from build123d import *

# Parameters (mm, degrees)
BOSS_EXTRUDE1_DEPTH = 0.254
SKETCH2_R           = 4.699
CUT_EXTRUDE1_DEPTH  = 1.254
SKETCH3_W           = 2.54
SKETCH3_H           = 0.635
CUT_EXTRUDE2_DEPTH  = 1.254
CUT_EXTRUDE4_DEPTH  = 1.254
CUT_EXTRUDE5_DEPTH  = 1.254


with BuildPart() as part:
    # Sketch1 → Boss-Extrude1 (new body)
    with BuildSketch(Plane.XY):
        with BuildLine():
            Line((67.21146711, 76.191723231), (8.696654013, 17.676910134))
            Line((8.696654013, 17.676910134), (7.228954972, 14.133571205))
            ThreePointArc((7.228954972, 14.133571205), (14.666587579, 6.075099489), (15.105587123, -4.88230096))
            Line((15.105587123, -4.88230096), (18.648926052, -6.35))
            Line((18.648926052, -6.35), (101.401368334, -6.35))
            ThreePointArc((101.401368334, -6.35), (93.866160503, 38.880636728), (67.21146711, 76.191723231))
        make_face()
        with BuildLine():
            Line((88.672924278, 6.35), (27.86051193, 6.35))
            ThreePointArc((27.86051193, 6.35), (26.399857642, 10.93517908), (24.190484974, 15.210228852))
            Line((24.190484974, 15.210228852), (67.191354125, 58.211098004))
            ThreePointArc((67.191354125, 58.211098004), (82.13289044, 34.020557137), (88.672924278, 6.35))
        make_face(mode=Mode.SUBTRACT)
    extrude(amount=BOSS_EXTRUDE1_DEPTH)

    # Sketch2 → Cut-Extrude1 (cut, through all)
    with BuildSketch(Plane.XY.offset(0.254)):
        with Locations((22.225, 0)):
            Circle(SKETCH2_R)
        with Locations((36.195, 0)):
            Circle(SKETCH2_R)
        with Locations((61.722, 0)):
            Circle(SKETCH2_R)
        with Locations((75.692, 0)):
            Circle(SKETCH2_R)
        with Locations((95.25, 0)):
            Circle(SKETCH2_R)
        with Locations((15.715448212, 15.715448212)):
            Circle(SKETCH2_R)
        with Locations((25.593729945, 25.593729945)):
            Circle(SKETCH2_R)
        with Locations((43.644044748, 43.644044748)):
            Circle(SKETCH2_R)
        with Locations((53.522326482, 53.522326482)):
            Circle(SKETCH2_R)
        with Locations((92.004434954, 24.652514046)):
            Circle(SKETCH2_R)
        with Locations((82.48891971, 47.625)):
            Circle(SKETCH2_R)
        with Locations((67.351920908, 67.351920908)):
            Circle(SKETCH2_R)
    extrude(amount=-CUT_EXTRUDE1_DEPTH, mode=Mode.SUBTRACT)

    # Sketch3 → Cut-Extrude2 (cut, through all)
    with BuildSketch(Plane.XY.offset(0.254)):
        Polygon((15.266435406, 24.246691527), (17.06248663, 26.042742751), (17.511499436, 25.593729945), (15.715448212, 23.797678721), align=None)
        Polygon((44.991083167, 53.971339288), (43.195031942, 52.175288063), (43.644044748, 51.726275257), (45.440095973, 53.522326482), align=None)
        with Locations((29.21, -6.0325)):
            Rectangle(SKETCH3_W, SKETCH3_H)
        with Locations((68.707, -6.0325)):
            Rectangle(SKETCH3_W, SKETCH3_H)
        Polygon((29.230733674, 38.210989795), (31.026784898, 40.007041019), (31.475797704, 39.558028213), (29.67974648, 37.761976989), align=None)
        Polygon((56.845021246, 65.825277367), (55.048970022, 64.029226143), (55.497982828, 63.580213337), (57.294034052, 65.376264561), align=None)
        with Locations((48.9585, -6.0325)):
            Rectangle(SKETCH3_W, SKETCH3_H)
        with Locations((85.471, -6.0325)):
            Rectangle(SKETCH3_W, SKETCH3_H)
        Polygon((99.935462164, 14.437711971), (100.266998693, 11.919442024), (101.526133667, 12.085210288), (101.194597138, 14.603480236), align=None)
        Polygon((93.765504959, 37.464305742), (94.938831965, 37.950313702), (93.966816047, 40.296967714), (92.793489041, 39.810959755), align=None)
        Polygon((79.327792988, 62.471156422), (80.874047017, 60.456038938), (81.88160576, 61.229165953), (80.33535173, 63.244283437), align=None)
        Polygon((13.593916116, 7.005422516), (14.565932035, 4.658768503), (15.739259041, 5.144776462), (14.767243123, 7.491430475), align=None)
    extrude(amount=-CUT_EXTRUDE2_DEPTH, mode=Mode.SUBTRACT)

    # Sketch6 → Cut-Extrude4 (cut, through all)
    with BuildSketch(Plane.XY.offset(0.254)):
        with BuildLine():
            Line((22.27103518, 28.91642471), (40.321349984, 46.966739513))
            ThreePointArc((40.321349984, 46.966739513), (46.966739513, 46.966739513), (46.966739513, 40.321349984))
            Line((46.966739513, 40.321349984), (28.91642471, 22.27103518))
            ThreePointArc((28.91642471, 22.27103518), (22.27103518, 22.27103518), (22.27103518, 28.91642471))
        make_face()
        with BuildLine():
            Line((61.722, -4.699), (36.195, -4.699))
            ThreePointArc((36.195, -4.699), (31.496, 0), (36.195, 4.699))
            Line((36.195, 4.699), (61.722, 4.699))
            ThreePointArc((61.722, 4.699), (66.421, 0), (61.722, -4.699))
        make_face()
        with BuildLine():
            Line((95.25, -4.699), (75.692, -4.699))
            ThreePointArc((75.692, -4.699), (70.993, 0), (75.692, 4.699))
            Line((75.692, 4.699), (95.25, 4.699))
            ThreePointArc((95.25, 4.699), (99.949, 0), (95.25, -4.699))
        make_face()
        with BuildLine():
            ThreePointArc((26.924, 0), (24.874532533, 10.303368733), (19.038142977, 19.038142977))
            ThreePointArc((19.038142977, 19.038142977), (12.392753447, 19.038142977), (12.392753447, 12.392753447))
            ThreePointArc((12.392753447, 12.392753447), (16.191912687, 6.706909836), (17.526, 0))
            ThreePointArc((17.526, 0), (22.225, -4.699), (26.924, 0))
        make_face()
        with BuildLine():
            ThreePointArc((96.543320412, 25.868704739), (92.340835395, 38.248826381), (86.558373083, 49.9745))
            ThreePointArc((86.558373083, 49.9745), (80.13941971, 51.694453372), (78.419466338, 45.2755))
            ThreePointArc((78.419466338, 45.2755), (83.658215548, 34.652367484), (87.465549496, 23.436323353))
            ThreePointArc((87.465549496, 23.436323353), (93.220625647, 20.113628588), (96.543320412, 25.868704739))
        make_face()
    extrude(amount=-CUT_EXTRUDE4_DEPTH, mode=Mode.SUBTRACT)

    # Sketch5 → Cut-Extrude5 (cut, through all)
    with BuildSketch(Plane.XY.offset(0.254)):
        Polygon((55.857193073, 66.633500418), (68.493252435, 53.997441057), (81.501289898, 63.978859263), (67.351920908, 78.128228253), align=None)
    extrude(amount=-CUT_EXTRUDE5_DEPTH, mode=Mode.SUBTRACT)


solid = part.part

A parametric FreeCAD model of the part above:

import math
import FreeCAD as App
import Part
import Sketcher
from FreeCAD import Vector
Q = App.Units.Quantity

doc = App.newDocument("Part")
body = doc.addObject("PartDesign::Body", "Body")

sketch1 = body.newObject("Sketcher::SketchObject", "Sketch")
sketch1.AttachmentSupport = (doc.getObject("XY_Plane"), [""])
sketch1.MapMode = "FlatFace"
sketch1.addGeometry(Part.LineSegment(Vector(67.2, 76.2, 0), Vector(8.7, 17.7, 0)), False)
sketch1.addGeometry(Part.LineSegment(Vector(8.7, 17.7, 0), Vector(7.2, 14.1, 0)), False)
sketch1.addGeometry(Part.ArcOfCircle(Part.Circle(Vector(0, 0, 0), Vector(0, 0, 1), 15.9), math.radians(-18), math.radians(63)), False)
sketch1.addGeometry(Part.LineSegment(Vector(15.1, -4.9, 0), Vector(18.6, -6.3, 0)), False)
sketch1.addGeometry(Part.LineSegment(Vector(18.6, -6.3, 0), Vector(101.4, -6.3, 0)), False)
sketch1.addGeometry(Part.ArcOfCircle(Part.Circle(Vector(0, 0, 0), Vector(0, 0, 1), 101.6), math.radians(-4), math.radians(49)), False)
sketch1.addGeometry(Part.ArcOfCircle(Part.Circle(Vector(0, 0, 0), Vector(0, 0, 1), 88.9), math.radians(4), math.radians(41)), False)
sketch1.addGeometry(Part.LineSegment(Vector(88.7, 6.3, 0), Vector(27.9, 6.3, 0)), False)
sketch1.addGeometry(Part.ArcOfCircle(Part.Circle(Vector(0, 0, 0), Vector(0, 0, 1), 28.6), math.radians(12.84), math.radians(32.16)), False)
sketch1.addGeometry(Part.LineSegment(Vector(24.2, 15.2, 0), Vector(67.2, 58.2, 0)), False)
sketch1.addConstraint(Sketcher.Constraint("Coincident", 0, 2, 1, 1))
sketch1.addConstraint(Sketcher.Constraint("Coincident", 1, 2, 2, 2))
sketch1.addConstraint(Sketcher.Constraint("Coincident", 2, 1, 3, 1))
sketch1.addConstraint(Sketcher.Constraint("Coincident", 3, 2, 4, 1))
sketch1.addConstraint(Sketcher.Constraint("Coincident", 4, 2, 5, 1))
sketch1.addConstraint(Sketcher.Constraint("Coincident", 5, 2, 0, 1))
sketch1.addConstraint(Sketcher.Constraint("Coincident", 6, 1, 7, 1))
sketch1.addConstraint(Sketcher.Constraint("Coincident", 7, 2, 8, 1))
sketch1.addConstraint(Sketcher.Constraint("Coincident", 8, 2, 9, 1))
sketch1.addConstraint(Sketcher.Constraint("Coincident", 9, 2, 6, 2))
sketch1.addConstraint(Sketcher.Constraint("Horizontal", 4))
sketch1.addConstraint(Sketcher.Constraint("Horizontal", 7))
sketch1.addConstraint(Sketcher.Constraint("Coincident", 2, 3, -1, 1))
sketch1.addConstraint(Sketcher.Constraint("Coincident", 5, 3, -1, 1))
sketch1.addConstraint(Sketcher.Constraint("Coincident", 6, 3, -1, 1))
sketch1.addConstraint(Sketcher.Constraint("Coincident", 8, 3, -1, 1))
sketch1.addConstraint(Sketcher.Constraint("Perpendicular", 1, 3))
sketch1.addConstraint(Sketcher.Constraint("Parallel", 0, 9))
sketch1.addConstraint(Sketcher.Constraint("Equal", 1, 3))
sketch1.addConstraint(Sketcher.Constraint("Radius", 5, Q("4 in")))
sketch1.addConstraint(Sketcher.Constraint("Radius", 6, Q("3.5 in")))
sketch1.addConstraint(Sketcher.Constraint("Angle", 0, Q("-135 deg")))
sketch1.addConstraint(Sketcher.Constraint("Radius", 2, Q("0.625 in")))
sketch1.addConstraint(Sketcher.Constraint("Radius", 8, Q("1.125 in")))
sketch1.addConstraint(Sketcher.Constraint("Angle", 1, Q("-112.5 deg")))
sketch1.addConstraint(Sketcher.Constraint("DistanceY", 4, 2, 6, 1, Q("0.5 in")))
sketch1.addConstraint(Sketcher.Constraint("DistanceY", 3, 2, -1, 1, Q("0.25 in")))
sketch1.addConstraint(Sketcher.Constraint("DistanceY", 2, 1, -1, 1, Q("4.882301 mm")))
sketch1.addConstraint(Sketcher.Constraint("DistanceY", -1, 1, 9, 2, Q("58.211098 mm")))
sketch1.addConstraint(Sketcher.Constraint("DistanceX", 5, 2, 4, 2, Q("34.189901 mm")))
pad1 = body.newObject("PartDesign::Pad", "Pad")
pad1.Profile = sketch1
pad1.Length = Q("0.01 in")

sketch2 = body.newObject("Sketcher::SketchObject", "Sketch001")
sketch2.AttachmentSupport = (doc.getObject("XY_Plane"), [""])
sketch2.MapMode = "FlatFace"
sketch2.AttachmentOffset = App.Placement(Vector(0, 0, 0.01 * 25.4), App.Rotation())
sketch2.addGeometry(Part.Circle(Vector(22.2, 0, 0), Vector(0, 0, 1), 4.7), False)
sketch2.addGeometry(Part.Circle(Vector(36.2, 0, 0), Vector(0, 0, 1), 4.7), False)
sketch2.addGeometry(Part.Circle(Vector(61.7, 0, 0), Vector(0, 0, 1), 4.7), False)
sketch2.addGeometry(Part.Circle(Vector(75.7, 0, 0), Vector(0, 0, 1), 4.7), False)
sketch2.addGeometry(Part.Circle(Vector(95.2, 0, 0), Vector(0, 0, 1), 4.7), False)
sketch2.addGeometry(Part.Circle(Vector(15.7, 15.7, 0), Vector(0, 0, 1), 4.7), False)
sketch2.addGeometry(Part.Circle(Vector(25.6, 25.6, 0), Vector(0, 0, 1), 4.7), False)
sketch2.addGeometry(Part.Circle(Vector(43.6, 43.6, 0), Vector(0, 0, 1), 4.7), False)
sketch2.addGeometry(Part.Circle(Vector(53.5, 53.5, 0), Vector(0, 0, 1), 4.7), False)
sketch2.addGeometry(Part.Circle(Vector(92, 24.7, 0), Vector(0, 0, 1), 4.7), False)
sketch2.addGeometry(Part.Circle(Vector(82.5, 47.6, 0), Vector(0, 0, 1), 4.7), False)
sketch2.addGeometry(Part.Circle(Vector(67.4, 67.4, 0), Vector(0, 0, 1), 4.7), False)
sketch2.addConstraint(Sketcher.Constraint("Equal", 0, 1))
sketch2.addConstraint(Sketcher.Constraint("Equal", 1, 2))
sketch2.addConstraint(Sketcher.Constraint("Equal", 2, 3))
sketch2.addConstraint(Sketcher.Constraint("Equal", 3, 4))
sketch2.addConstraint(Sketcher.Constraint("Equal", 4, 5))
sketch2.addConstraint(Sketcher.Constraint("Equal", 5, 6))
sketch2.addConstraint(Sketcher.Constraint("Equal", 6, 7))
sketch2.addConstraint(Sketcher.Constraint("Equal", 7, 8))
sketch2.addConstraint(Sketcher.Constraint("Equal", 8, 9))
sketch2.addConstraint(Sketcher.Constraint("Equal", 9, 10))
sketch2.addConstraint(Sketcher.Constraint("Equal", 10, 11))
sketch2.addConstraint(Sketcher.Constraint("PointOnObject", 0, 3, -1))
sketch2.addConstraint(Sketcher.Constraint("PointOnObject", 1, 3, -1))
sketch2.addConstraint(Sketcher.Constraint("PointOnObject", 2, 3, -1))
sketch2.addConstraint(Sketcher.Constraint("PointOnObject", 3, 3, -1))
sketch2.addConstraint(Sketcher.Constraint("PointOnObject", 4, 3, -1))
sketch2.addConstraint(Sketcher.Constraint("Diameter", 0, Q("0.37 in")))
sketch2.addConstraint(Sketcher.Constraint("DistanceX", -1, 1, 2, 3, Q("2.43 in")))
sketch2.addConstraint(Sketcher.Constraint("DistanceX", -1, 1, 3, 3, Q("2.98 in")))
sketch2.addConstraint(Sketcher.Constraint("DistanceX", -1, 1, 4, 3, Q("3.75 in")))
sketch2.addConstraint(Sketcher.Constraint("DistanceX", 0, 3, 1, 3, Q("0.55 in")))
sketch2.addConstraint(Sketcher.Constraint("DistanceX", -1, 1, 0, 3, Q("0.875 in")))
sketch2.addConstraint(Sketcher.Constraint("DistanceY", -1, 1, 10, 3, Q("1.875 in")))
sketch2.addConstraint(Sketcher.Constraint("DistanceX", 11, 3, 10, 3, Q("15.136999 mm")))
sketch2.addConstraint(Sketcher.Constraint("DistanceX", -1, 1, 5, 3, Q("15.715448 mm")))
sketch2.addConstraint(Sketcher.Constraint("DistanceY", -1, 1, 5, 3, Q("15.715448 mm")))
sketch2.addConstraint(Sketcher.Constraint("DistanceX", -1, 1, 6, 3, Q("25.59373 mm")))
sketch2.addConstraint(Sketcher.Constraint("DistanceY", -1, 1, 6, 3, Q("25.59373 mm")))
sketch2.addConstraint(Sketcher.Constraint("DistanceX", -1, 1, 10, 3, Q("82.48892 mm")))
sketch2.addConstraint(Sketcher.Constraint("DistanceY", -1, 1, 11, 3, Q("67.351921 mm")))
sketch2.addConstraint(Sketcher.Constraint("DistanceX", 7, 3, 8, 3, Q("9.878282 mm")))
sketch2.addConstraint(Sketcher.Constraint("DistanceY", 7, 3, 8, 3, Q("9.878282 mm")))
sketch2.addConstraint(Sketcher.Constraint("DistanceX", 5, 3, 8, 3, Q("37.806878 mm")))
sketch2.addConstraint(Sketcher.Constraint("DistanceY", 5, 3, 8, 3, Q("37.806878 mm")))
sketch2.addConstraint(Sketcher.Constraint("DistanceX", 8, 3, 9, 3, Q("38.482108 mm")))
sketch2.addConstraint(Sketcher.Constraint("DistanceY", 9, 3, 7, 3, Q("18.991531 mm")))
pocket1 = body.newObject("PartDesign::Pocket", "Pocket")
pocket1.Profile = sketch2
pocket1.Type = "ThroughAll"

sketch3 = body.newObject("Sketcher::SketchObject", "Sketch002")
sketch3.AttachmentSupport = (doc.getObject("XY_Plane"), [""])
sketch3.MapMode = "FlatFace"
sketch3.AttachmentOffset = App.Placement(Vector(0, 0, 0.01 * 25.4), App.Rotation())
sketch3.addGeometry(Part.LineSegment(Vector(17.1, 26, 0), Vector(15.3, 24.2, 0)), False)
sketch3.addGeometry(Part.LineSegment(Vector(15.3, 24.2, 0), Vector(15.7, 23.8, 0)), False)
sketch3.addGeometry(Part.LineSegment(Vector(15.7, 23.8, 0), Vector(17.5, 25.6, 0)), False)
sketch3.addGeometry(Part.LineSegment(Vector(17.5, 25.6, 0), Vector(17.1, 26, 0)), False)
sketch3.addGeometry(Part.LineSegment(Vector(45, 54, 0), Vector(43.2, 52.2, 0)), False)
sketch3.addGeometry(Part.LineSegment(Vector(43.2, 52.2, 0), Vector(43.6, 51.7, 0)), False)
sketch3.addGeometry(Part.LineSegment(Vector(43.6, 51.7, 0), Vector(45.4, 53.5, 0)), False)
sketch3.addGeometry(Part.LineSegment(Vector(45.4, 53.5, 0), Vector(45, 54, 0)), False)
sketch3.addGeometry(Part.LineSegment(Vector(27.9, -5.7, 0), Vector(27.9, -6.3, 0)), False)
sketch3.addGeometry(Part.LineSegment(Vector(27.9, -6.3, 0), Vector(30.5, -6.3, 0)), False)
sketch3.addGeometry(Part.LineSegment(Vector(30.5, -6.3, 0), Vector(30.5, -5.7, 0)), False)
sketch3.addGeometry(Part.LineSegment(Vector(30.5, -5.7, 0), Vector(27.9, -5.7, 0)), False)
sketch3.addGeometry(Part.LineSegment(Vector(67.4, -5.7, 0), Vector(67.4, -6.3, 0)), False)
sketch3.addGeometry(Part.LineSegment(Vector(67.4, -6.3, 0), Vector(70, -6.3, 0)), False)
sketch3.addGeometry(Part.LineSegment(Vector(70, -6.3, 0), Vector(70, -5.7, 0)), False)
sketch3.addGeometry(Part.LineSegment(Vector(70, -5.7, 0), Vector(67.4, -5.7, 0)), False)
sketch3.addGeometry(Part.LineSegment(Vector(31, 40, 0), Vector(29.2, 38.2, 0)), False)
sketch3.addGeometry(Part.LineSegment(Vector(29.2, 38.2, 0), Vector(29.7, 37.8, 0)), False)
sketch3.addGeometry(Part.LineSegment(Vector(29.7, 37.8, 0), Vector(31.5, 39.6, 0)), False)
sketch3.addGeometry(Part.LineSegment(Vector(31.5, 39.6, 0), Vector(31, 40, 0)), False)
sketch3.addGeometry(Part.LineSegment(Vector(56.8, 65.8, 0), Vector(55, 64, 0)), False)
sketch3.addGeometry(Part.LineSegment(Vector(55, 64, 0), Vector(55.5, 63.6, 0)), False)
sketch3.addGeometry(Part.LineSegment(Vector(55.5, 63.6, 0), Vector(57.3, 65.4, 0)), False)
sketch3.addGeometry(Part.LineSegment(Vector(57.3, 65.4, 0), Vector(56.8, 65.8, 0)), False)
sketch3.addGeometry(Part.LineSegment(Vector(47.7, -5.7, 0), Vector(47.7, -6.3, 0)), False)
sketch3.addGeometry(Part.LineSegment(Vector(47.7, -6.3, 0), Vector(50.2, -6.3, 0)), False)
sketch3.addGeometry(Part.LineSegment(Vector(50.2, -6.3, 0), Vector(50.2, -5.7, 0)), False)
sketch3.addGeometry(Part.LineSegment(Vector(50.2, -5.7, 0), Vector(47.7, -5.7, 0)), False)
sketch3.addGeometry(Part.LineSegment(Vector(84.2, -5.7, 0), Vector(84.2, -6.3, 0)), False)
sketch3.addGeometry(Part.LineSegment(Vector(84.2, -6.3, 0), Vector(86.7, -6.3, 0)), False)
sketch3.addGeometry(Part.LineSegment(Vector(86.7, -6.3, 0), Vector(86.7, -5.7, 0)), False)
sketch3.addGeometry(Part.LineSegment(Vector(86.7, -5.7, 0), Vector(84.2, -5.7, 0)), False)
sketch3.addGeometry(Part.LineSegment(Vector(99.9, 14.4, 0), Vector(100.3, 11.9, 0)), False)
sketch3.addGeometry(Part.LineSegment(Vector(100.3, 11.9, 0), Vector(101.5, 12.1, 0)), False)
sketch3.addGeometry(Part.LineSegment(Vector(101.5, 12.1, 0), Vector(101.2, 14.6, 0)), False)
sketch3.addGeometry(Part.LineSegment(Vector(101.2, 14.6, 0), Vector(99.9, 14.4, 0)), False)
sketch3.addGeometry(Part.LineSegment(Vector(93.8, 37.5, 0), Vector(94.9, 38, 0)), False)
sketch3.addGeometry(Part.LineSegment(Vector(94.9, 38, 0), Vector(94, 40.3, 0)), False)
sketch3.addGeometry(Part.LineSegment(Vector(94, 40.3, 0), Vector(92.8, 39.8, 0)), False)
sketch3.addGeometry(Part.LineSegment(Vector(92.8, 39.8, 0), Vector(93.8, 37.5, 0)), False)
sketch3.addGeometry(Part.LineSegment(Vector(79.3, 62.5, 0), Vector(80.9, 60.5, 0)), False)
sketch3.addGeometry(Part.LineSegment(Vector(80.9, 60.5, 0), Vector(81.9, 61.2, 0)), False)
sketch3.addGeometry(Part.LineSegment(Vector(81.9, 61.2, 0), Vector(80.3, 63.2, 0)), False)
sketch3.addGeometry(Part.LineSegment(Vector(80.3, 63.2, 0), Vector(79.3, 62.5, 0)), False)
sketch3.addGeometry(Part.LineSegment(Vector(13.6, 7, 0), Vector(14.6, 4.7, 0)), False)
sketch3.addGeometry(Part.LineSegment(Vector(14.6, 4.7, 0), Vector(15.7, 5.1, 0)), False)
sketch3.addGeometry(Part.LineSegment(Vector(15.7, 5.1, 0), Vector(14.8, 7.5, 0)), False)
sketch3.addGeometry(Part.LineSegment(Vector(14.8, 7.5, 0), Vector(13.6, 7, 0)), False)
sketch3.addConstraint(Sketcher.Constraint("Coincident", 0, 2, 1, 1))
sketch3.addConstraint(Sketcher.Constraint("Coincident", 1, 2, 2, 1))
sketch3.addConstraint(Sketcher.Constraint("Coincident", 2, 2, 3, 1))
sketch3.addConstraint(Sketcher.Constraint("Coincident", 3, 2, 0, 1))
sketch3.addConstraint(Sketcher.Constraint("Coincident", 4, 2, 5, 1))
sketch3.addConstraint(Sketcher.Constraint("Coincident", 5, 2, 6, 1))
sketch3.addConstraint(Sketcher.Constraint("Coincident", 6, 2, 7, 1))
sketch3.addConstraint(Sketcher.Constraint("Coincident", 7, 2, 4, 1))
sketch3.addConstraint(Sketcher.Constraint("Coincident", 8, 2, 9, 1))
sketch3.addConstraint(Sketcher.Constraint("Coincident", 9, 2, 10, 1))
sketch3.addConstraint(Sketcher.Constraint("Coincident", 10, 2, 11, 1))
sketch3.addConstraint(Sketcher.Constraint("Coincident", 11, 2, 8, 1))
sketch3.addConstraint(Sketcher.Constraint("Coincident", 12, 2, 13, 1))
sketch3.addConstraint(Sketcher.Constraint("Coincident", 13, 2, 14, 1))
sketch3.addConstraint(Sketcher.Constraint("Coincident", 14, 2, 15, 1))
sketch3.addConstraint(Sketcher.Constraint("Coincident", 15, 2, 12, 1))
sketch3.addConstraint(Sketcher.Constraint("Coincident", 16, 2, 17, 1))
sketch3.addConstraint(Sketcher.Constraint("Coincident", 17, 2, 18, 1))
sketch3.addConstraint(Sketcher.Constraint("Coincident", 18, 2, 19, 1))
sketch3.addConstraint(Sketcher.Constraint("Coincident", 19, 2, 16, 1))
sketch3.addConstraint(Sketcher.Constraint("Coincident", 20, 2, 21, 1))
sketch3.addConstraint(Sketcher.Constraint("Coincident", 21, 2, 22, 1))
sketch3.addConstraint(Sketcher.Constraint("Coincident", 22, 2, 23, 1))
sketch3.addConstraint(Sketcher.Constraint("Coincident", 23, 2, 20, 1))
sketch3.addConstraint(Sketcher.Constraint("Coincident", 24, 2, 25, 1))
sketch3.addConstraint(Sketcher.Constraint("Coincident", 25, 2, 26, 1))
sketch3.addConstraint(Sketcher.Constraint("Coincident", 26, 2, 27, 1))
sketch3.addConstraint(Sketcher.Constraint("Coincident", 27, 2, 24, 1))
sketch3.addConstraint(Sketcher.Constraint("Coincident", 28, 2, 29, 1))
sketch3.addConstraint(Sketcher.Constraint("Coincident", 29, 2, 30, 1))
sketch3.addConstraint(Sketcher.Constraint("Coincident", 30, 2, 31, 1))
sketch3.addConstraint(Sketcher.Constraint("Coincident", 31, 2, 28, 1))
sketch3.addConstraint(Sketcher.Constraint("Coincident", 32, 2, 33, 1))
sketch3.addConstraint(Sketcher.Constraint("Coincident", 33, 2, 34, 1))
sketch3.addConstraint(Sketcher.Constraint("Coincident", 34, 2, 35, 1))
sketch3.addConstraint(Sketcher.Constraint("Coincident", 35, 2, 32, 1))
sketch3.addConstraint(Sketcher.Constraint("Coincident", 36, 2, 37, 1))
sketch3.addConstraint(Sketcher.Constraint("Coincident", 37, 2, 38, 1))
sketch3.addConstraint(Sketcher.Constraint("Coincident", 38, 2, 39, 1))
sketch3.addConstraint(Sketcher.Constraint("Coincident", 39, 2, 36, 1))
sketch3.addConstraint(Sketcher.Constraint("Coincident", 40, 2, 41, 1))
sketch3.addConstraint(Sketcher.Constraint("Coincident", 41, 2, 42, 1))
sketch3.addConstraint(Sketcher.Constraint("Coincident", 42, 2, 43, 1))
sketch3.addConstraint(Sketcher.Constraint("Coincident", 43, 2, 40, 1))
sketch3.addConstraint(Sketcher.Constraint("Coincident", 44, 2, 45, 1))
sketch3.addConstraint(Sketcher.Constraint("Coincident", 45, 2, 46, 1))
sketch3.addConstraint(Sketcher.Constraint("Coincident", 46, 2, 47, 1))
sketch3.addConstraint(Sketcher.Constraint("Coincident", 47, 2, 44, 1))
sketch3.addConstraint(Sketcher.Constraint("Vertical", 8))
sketch3.addConstraint(Sketcher.Constraint("Horizontal", 9))
sketch3.addConstraint(Sketcher.Constraint("Vertical", 10))
sketch3.addConstraint(Sketcher.Constraint("Horizontal", 11))
sketch3.addConstraint(Sketcher.Constraint("Vertical", 12))
sketch3.addConstraint(Sketcher.Constraint("Horizontal", 13))
sketch3.addConstraint(Sketcher.Constraint("Vertical", 14))
sketch3.addConstraint(Sketcher.Constraint("Horizontal", 15))
sketch3.addConstraint(Sketcher.Constraint("Vertical", 24))
sketch3.addConstraint(Sketcher.Constraint("Horizontal", 25))
sketch3.addConstraint(Sketcher.Constraint("Vertical", 26))
sketch3.addConstraint(Sketcher.Constraint("Horizontal", 27))
sketch3.addConstraint(Sketcher.Constraint("Vertical", 28))
sketch3.addConstraint(Sketcher.Constraint("Horizontal", 29))
sketch3.addConstraint(Sketcher.Constraint("Vertical", 30))
sketch3.addConstraint(Sketcher.Constraint("Horizontal", 31))
sketch3.addConstraint(Sketcher.Constraint("Perpendicular", 0, 1))
sketch3.addConstraint(Sketcher.Constraint("Perpendicular", 1, 2))
sketch3.addConstraint(Sketcher.Constraint("Perpendicular", 2, 3))
sketch3.addConstraint(Sketcher.Constraint("Perpendicular", 3, 4))
sketch3.addConstraint(Sketcher.Constraint("Perpendicular", 4, 5))
sketch3.addConstraint(Sketcher.Constraint("Perpendicular", 5, 6))
sketch3.addConstraint(Sketcher.Constraint("Perpendicular", 6, 7))
sketch3.addConstraint(Sketcher.Constraint("Perpendicular", 7, 16))
sketch3.addConstraint(Sketcher.Constraint("Perpendicular", 16, 17))
sketch3.addConstraint(Sketcher.Constraint("Perpendicular", 17, 18))
sketch3.addConstraint(Sketcher.Constraint("Perpendicular", 18, 19))
sketch3.addConstraint(Sketcher.Constraint("Perpendicular", 19, 20))
sketch3.addConstraint(Sketcher.Constraint("Perpendicular", 20, 21))
sketch3.addConstraint(Sketcher.Constraint("Perpendicular", 21, 22))
sketch3.addConstraint(Sketcher.Constraint("Perpendicular", 22, 23))
sketch3.addConstraint(Sketcher.Constraint("Perpendicular", 32, 33))
sketch3.addConstraint(Sketcher.Constraint("Perpendicular", 33, 34))
sketch3.addConstraint(Sketcher.Constraint("Perpendicular", 34, 35))
sketch3.addConstraint(Sketcher.Constraint("Perpendicular", 36, 37))
sketch3.addConstraint(Sketcher.Constraint("Perpendicular", 37, 38))
sketch3.addConstraint(Sketcher.Constraint("Perpendicular", 38, 39))
sketch3.addConstraint(Sketcher.Constraint("Perpendicular", 40, 41))
sketch3.addConstraint(Sketcher.Constraint("Perpendicular", 41, 42))
sketch3.addConstraint(Sketcher.Constraint("Perpendicular", 42, 43))
sketch3.addConstraint(Sketcher.Constraint("Parallel", 39, 44))
sketch3.addConstraint(Sketcher.Constraint("Perpendicular", 44, 45))
sketch3.addConstraint(Sketcher.Constraint("Perpendicular", 45, 46))
sketch3.addConstraint(Sketcher.Constraint("Perpendicular", 46, 47))
sketch3.addConstraint(Sketcher.Constraint("Horizontal", 9, 2, 12, 2))
sketch3.addConstraint(Sketcher.Constraint("Horizontal", 11, 2, 14, 2))
sketch3.addConstraint(Sketcher.Constraint("Horizontal", 13, 2, 24, 2))
sketch3.addConstraint(Sketcher.Constraint("Horizontal", 15, 2, 26, 2))
sketch3.addConstraint(Sketcher.Constraint("Horizontal", 25, 2, 28, 2))
sketch3.addConstraint(Sketcher.Constraint("Horizontal", 27, 2, 30, 2))
sketch3.addConstraint(Sketcher.Constraint("Equal", 11, 13))
sketch3.addConstraint(Sketcher.Constraint("Equal", 15, 25))
sketch3.addConstraint(Sketcher.Constraint("Equal", 27, 29))
sketch3.addConstraint(Sketcher.Constraint("Equal", 2, 4))
sketch3.addConstraint(Sketcher.Constraint("Equal", 3, 5))
sketch3.addConstraint(Sketcher.Constraint("Equal", 6, 16))
sketch3.addConstraint(Sketcher.Constraint("Equal", 7, 17))
sketch3.addConstraint(Sketcher.Constraint("Equal", 18, 20))
sketch3.addConstraint(Sketcher.Constraint("Equal", 19, 21))
sketch3.addConstraint(Sketcher.Constraint("Equal", 22, 32))
sketch3.addConstraint(Sketcher.Constraint("Equal", 35, 36))
sketch3.addConstraint(Sketcher.Constraint("Equal", 34, 37))
sketch3.addConstraint(Sketcher.Constraint("Equal", 39, 40))
sketch3.addConstraint(Sketcher.Constraint("Equal", 38, 41))
sketch3.addConstraint(Sketcher.Constraint("Equal", 42, 44))
sketch3.addConstraint(Sketcher.Constraint("Equal", 43, 45))
sketch3.addConstraint(Sketcher.Constraint("DistanceX", 9, 1, 9, 2, Q("0.1 in")))
sketch3.addConstraint(Sketcher.Constraint("Angle", 0, Q("-135 deg")))
sketch3.addConstraint(Sketcher.Constraint("Distance", 0, Q("0.1 in")))
sketch3.addConstraint(Sketcher.Constraint("DistanceX", -1, 1, 8, 2, Q("1.1 in")))
sketch3.addConstraint(Sketcher.Constraint("Angle", 32, Q("-82.5 deg")))
sketch3.addConstraint(Sketcher.Constraint("Angle", 36, Q("22.5 deg")))
sketch3.addConstraint(Sketcher.Constraint("Angle", 40, Q("-52.5 deg")))
sketch3.addConstraint(Sketcher.Constraint("Distance", 33, Q("0.05 in")))
sketch3.addConstraint(Sketcher.Constraint("DistanceY", 8, 2, 8, 1, Q("0.025 in")))
sketch3.addConstraint(Sketcher.Constraint("DistanceY", 8, 2, -1, 1, Q("0.25 in")))
sketch3.addConstraint(Sketcher.Constraint("DistanceX", 13, 2, 28, 2, Q("0.56 in")))
sketch3.addConstraint(Sketcher.Constraint("Distance", 1, Q("0.025 in")))
sketch3.addConstraint(Sketcher.Constraint("DistanceX", -1, 1, 12, 2, Q("2.655 in")))
sketch3.addConstraint(Sketcher.Constraint("DistanceX", -1, 1, 24, 2, Q("1.8775 in")))
sketch3.addConstraint(Sketcher.Constraint("DistanceX", -1, 1, 2, 2, Q("17.511499 mm")))
sketch3.addConstraint(Sketcher.Constraint("DistanceX", -1, 1, 32, 2, Q("100.266999 mm")))
sketch3.addConstraint(Sketcher.Constraint("DistanceX", 16, 2, 4, 2, Q("13.964298 mm")))
sketch3.addConstraint(Sketcher.Constraint("DistanceY", 16, 2, 4, 2, Q("13.964298 mm")))
sketch3.addConstraint(Sketcher.Constraint("DistanceX", 0, 2, 16, 2, Q("13.964298 mm")))
sketch3.addConstraint(Sketcher.Constraint("DistanceY", 0, 2, 16, 2, Q("13.964298 mm")))
sketch3.addConstraint(Sketcher.Constraint("DistanceY", 6, 2, 20, 2, Q("10.5069 mm")))
sketch3.addConstraint(Sketcher.Constraint("DistanceX", 7, 2, 21, 2, Q("10.5069 mm")))
sketch3.addConstraint(Sketcher.Constraint("DistanceY", 35, 2, 36, 2, Q("23.512602 mm")))
sketch3.addConstraint(Sketcher.Constraint("DistanceX", 36, 2, 33, 2, Q("6.587302 mm")))
sketch3.addConstraint(Sketcher.Constraint("DistanceY", 37, 2, 41, 2, Q("20.932198 mm")))
sketch3.addConstraint(Sketcher.Constraint("DistanceY", 41, 2, 22, 2, Q("4.147099 mm")))
sketch3.addConstraint(Sketcher.Constraint("DistanceY", 46, 2, 2, 2, Q("18.102299 mm")))
sketch3.addConstraint(Sketcher.Constraint("DistanceY", -1, 1, 0, 2, Q("24.246692 mm")))
sketch3.addConstraint(Sketcher.Constraint("DistanceX", -1, 1, 42, 2, Q("80.335352 mm")))
sketch3.addConstraint(Sketcher.Constraint("DistanceX", -1, 1, 45, 2, Q("15.739259 mm")))
pocket2 = body.newObject("PartDesign::Pocket", "Pocket001")
pocket2.Profile = sketch3
pocket2.Type = "ThroughAll"

sketch4 = body.newObject("Sketcher::SketchObject", "Sketch003")
sketch4.AttachmentSupport = (doc.getObject("XY_Plane"), [""])
sketch4.MapMode = "FlatFace"
sketch4.AttachmentOffset = App.Placement(Vector(0, 0, 0.01 * 25.4), App.Rotation())
sketch4.addGeometry(Part.LineSegment(Vector(40.3, 47, 0), Vector(22.3, 28.9, 0)), False)
sketch4.addGeometry(Part.ArcOfCircle(Part.Circle(Vector(25.6, 25.6, 0), Vector(0, 0, 1), 4.7), math.radians(135), math.radians(315)), False)
sketch4.addGeometry(Part.LineSegment(Vector(28.9, 22.3, 0), Vector(47, 40.3, 0)), False)
sketch4.addGeometry(Part.ArcOfCircle(Part.Circle(Vector(43.6, 43.6, 0), Vector(0, 0, 1), 4.7), math.radians(-45), math.radians(135)), False)
sketch4.addGeometry(Part.LineSegment(Vector(36.2, -4.7, 0), Vector(61.7, -4.7, 0)), False)
sketch4.addGeometry(Part.ArcOfCircle(Part.Circle(Vector(61.7, 0, 0), Vector(0, 0, 1), 4.7), math.radians(-90), math.radians(90)), False)
sketch4.addGeometry(Part.LineSegment(Vector(61.7, 4.7, 0), Vector(36.2, 4.7, 0)), False)
sketch4.addGeometry(Part.ArcOfCircle(Part.Circle(Vector(36.2, 0, 0), Vector(0, 0, 1), 4.7), math.radians(90), math.radians(270)), False)
sketch4.addGeometry(Part.LineSegment(Vector(75.7, -4.7, 0), Vector(95.2, -4.7, 0)), False)
sketch4.addGeometry(Part.ArcOfCircle(Part.Circle(Vector(95.2, 0, 0), Vector(0, 0, 1), 4.7), math.radians(-90), math.radians(90)), False)
sketch4.addGeometry(Part.LineSegment(Vector(95.2, 4.7, 0), Vector(75.7, 4.7, 0)), False)
sketch4.addGeometry(Part.ArcOfCircle(Part.Circle(Vector(75.7, 0, 0), Vector(0, 0, 1), 4.7), math.radians(90), math.radians(270)), False)
sketch4.addGeometry(Part.ArcOfCircle(Part.Circle(Vector(0, 0, 0), Vector(0, 0, 1), 26.9), math.radians(0), math.radians(45)), False)
sketch4.addGeometry(Part.ArcOfCircle(Part.Circle(Vector(15.7, 15.7, 0), Vector(0, 0, 1), 4.7), math.radians(45), math.radians(225)), False)
sketch4.addGeometry(Part.ArcOfCircle(Part.Circle(Vector(0, 0, 0), Vector(0, 0, 1), 17.5), math.radians(0), math.radians(45)), False)
sketch4.addGeometry(Part.ArcOfCircle(Part.Circle(Vector(22.2, 0, 0), Vector(0, 0, 1), 4.7), math.radians(180), math.radians(360)), False)
sketch4.addGeometry(Part.ArcOfCircle(Part.Circle(Vector(0, 0, 0), Vector(0, 0, 1), 99.9), math.radians(15), math.radians(30)), False)
sketch4.addGeometry(Part.ArcOfCircle(Part.Circle(Vector(82.5, 47.6, 0), Vector(0, 0, 1), 4.7), math.radians(30), math.radians(210)), False)
sketch4.addGeometry(Part.ArcOfCircle(Part.Circle(Vector(0, 0, 0), Vector(0, 0, 1), 90.6), math.radians(15), math.radians(30)), False)
sketch4.addGeometry(Part.ArcOfCircle(Part.Circle(Vector(92, 24.7, 0), Vector(0, 0, 1), 4.7), math.radians(-165), math.radians(15)), False)
sketch4.addConstraint(Sketcher.Constraint("Tangent", 0, 2, 1, 1))
sketch4.addConstraint(Sketcher.Constraint("Tangent", 1, 2, 2, 1))
sketch4.addConstraint(Sketcher.Constraint("Tangent", 2, 2, 3, 1))
sketch4.addConstraint(Sketcher.Constraint("Tangent", 3, 2, 0, 1))
sketch4.addConstraint(Sketcher.Constraint("Tangent", 4, 2, 5, 1))
sketch4.addConstraint(Sketcher.Constraint("Tangent", 5, 2, 6, 1))
sketch4.addConstraint(Sketcher.Constraint("Tangent", 6, 2, 7, 1))
sketch4.addConstraint(Sketcher.Constraint("Tangent", 7, 2, 4, 1))
sketch4.addConstraint(Sketcher.Constraint("Tangent", 8, 2, 9, 1))
sketch4.addConstraint(Sketcher.Constraint("Tangent", 9, 2, 10, 1))
sketch4.addConstraint(Sketcher.Constraint("Tangent", 10, 2, 11, 1))
sketch4.addConstraint(Sketcher.Constraint("Tangent", 11, 2, 8, 1))
sketch4.addConstraint(Sketcher.Constraint("Tangent", 12, 2, 13, 1))
sketch4.addConstraint(Sketcher.Constraint("Tangent", 13, 2, 14, 2))
sketch4.addConstraint(Sketcher.Constraint("Tangent", 14, 1, 15, 1))
sketch4.addConstraint(Sketcher.Constraint("Tangent", 15, 2, 12, 1))
sketch4.addConstraint(Sketcher.Constraint("Tangent", 16, 2, 17, 1))
sketch4.addConstraint(Sketcher.Constraint("Tangent", 17, 2, 18, 2))
sketch4.addConstraint(Sketcher.Constraint("Tangent", 18, 1, 19, 1))
sketch4.addConstraint(Sketcher.Constraint("Tangent", 19, 2, 16, 1))
sketch4.addConstraint(Sketcher.Constraint("Horizontal", 4))
sketch4.addConstraint(Sketcher.Constraint("Horizontal", 6))
sketch4.addConstraint(Sketcher.Constraint("Horizontal", 8))
sketch4.addConstraint(Sketcher.Constraint("Horizontal", 10))
sketch4.addConstraint(Sketcher.Constraint("Coincident", 12, 3, -1, 1))
sketch4.addConstraint(Sketcher.Constraint("Coincident", 14, 3, -1, 1))
sketch4.addConstraint(Sketcher.Constraint("Coincident", 16, 3, -1, 1))
sketch4.addConstraint(Sketcher.Constraint("Coincident", 18, 3, -1, 1))
sketch4.addConstraint(Sketcher.Constraint("Equal", 1, 3))
sketch4.addConstraint(Sketcher.Constraint("Equal", 3, 5))
sketch4.addConstraint(Sketcher.Constraint("Equal", 7, 9))
sketch4.addConstraint(Sketcher.Constraint("Equal", 11, 13))
sketch4.addConstraint(Sketcher.Constraint("Equal", 15, 17))
sketch4.addConstraint(Sketcher.Constraint("PointOnObject", 5, 3, -1))
sketch4.addConstraint(Sketcher.Constraint("PointOnObject", 9, 3, -1))
sketch4.addConstraint(Sketcher.Constraint("PointOnObject", 15, 3, -1))
sketch4.addConstraint(Sketcher.Constraint("Radius", 12, Q("1.06 in")))
sketch4.addConstraint(Sketcher.Constraint("Radius", 14, Q("0.69 in")))
sketch4.addConstraint(Sketcher.Constraint("Angle", 0, Q("-135 deg")))
sketch4.addConstraint(Sketcher.Constraint("Radius", 16, Q("3.935 in")))
sketch4.addConstraint(Sketcher.Constraint("DistanceX", 8, 1, 8, 2, Q("0.77 in")))
sketch4.addConstraint(Sketcher.Constraint("DistanceX", 4, 1, 4, 2, Q("1.005 in")))
sketch4.addConstraint(Sketcher.Constraint("DistanceX", -1, 1, 5, 3, Q("2.43 in")))
sketch4.addConstraint(Sketcher.Constraint("DistanceX", -1, 1, 9, 3, Q("3.75 in")))
sketch4.addConstraint(Sketcher.Constraint("Distance", 0, Q("1.005 in")))
sketch4.addConstraint(Sketcher.Constraint("DistanceY", -1, 1, 17, 3, Q("1.875 in")))
sketch4.addConstraint(Sketcher.Constraint("DistanceX", 17, 3, 19, 2, Q("14.054401 mm")))
sketch4.addConstraint(Sketcher.Constraint("DistanceX", -1, 1, 1, 3, Q("25.59373 mm")))
sketch4.addConstraint(Sketcher.Constraint("DistanceY", -1, 1, 1, 3, Q("25.59373 mm")))
sketch4.addConstraint(Sketcher.Constraint("DistanceX", -1, 1, 13, 3, Q("15.715448 mm")))
pocket3 = body.newObject("PartDesign::Pocket", "Pocket002")
pocket3.Profile = sketch4
pocket3.Type = "ThroughAll"

sketch5 = body.newObject("Sketcher::SketchObject", "Sketch004")
sketch5.AttachmentSupport = (doc.getObject("XY_Plane"), [""])
sketch5.MapMode = "FlatFace"
sketch5.AttachmentOffset = App.Placement(Vector(0, 0, 0.01 * 25.4), App.Rotation())
sketch5.addGeometry(Part.LineSegment(Vector(56, 67, 0), Vector(68, 54, 0)), False)
sketch5.addGeometry(Part.LineSegment(Vector(68, 54, 0), Vector(82, 64, 0)), False)
sketch5.addGeometry(Part.LineSegment(Vector(82, 64, 0), Vector(67, 78, 0)), False)
sketch5.addGeometry(Part.LineSegment(Vector(67, 78, 0), Vector(56, 67, 0)), False)
sketch5.addConstraint(Sketcher.Constraint("Coincident", 0, 2, 1, 1))
sketch5.addConstraint(Sketcher.Constraint("Coincident", 1, 2, 2, 1))
sketch5.addConstraint(Sketcher.Constraint("Coincident", 2, 2, 3, 1))
sketch5.addConstraint(Sketcher.Constraint("Coincident", 3, 2, 0, 1))
sketch5.addConstraint(Sketcher.Constraint("Parallel", 0, 2))
sketch5.addConstraint(Sketcher.Constraint("Perpendicular", 2, 3))
sketch5.addConstraint(Sketcher.Constraint("Angle", 0, Q("-45 deg")))
sketch5.addConstraint(Sketcher.Constraint("Angle", 1, Q("37.5 deg")))
sketch5.addConstraint(Sketcher.Constraint("Distance", 3, Q("0.64 in")))
sketch5.addConstraint(Sketcher.Constraint("DistanceY", -1, 1, 3, 2, Q("66.6335 mm")))
sketch5.addConstraint(Sketcher.Constraint("Distance", 2, Q("20.01023 mm")))
sketch5.addConstraint(Sketcher.Constraint("DistanceX", -1, 1, 1, 2, Q("81.50129 mm")))
pocket4 = body.newObject("PartDesign::Pocket", "Pocket003")
pocket4.Profile = sketch5
pocket4.Type = "ThroughAll"

doc.recompute()
